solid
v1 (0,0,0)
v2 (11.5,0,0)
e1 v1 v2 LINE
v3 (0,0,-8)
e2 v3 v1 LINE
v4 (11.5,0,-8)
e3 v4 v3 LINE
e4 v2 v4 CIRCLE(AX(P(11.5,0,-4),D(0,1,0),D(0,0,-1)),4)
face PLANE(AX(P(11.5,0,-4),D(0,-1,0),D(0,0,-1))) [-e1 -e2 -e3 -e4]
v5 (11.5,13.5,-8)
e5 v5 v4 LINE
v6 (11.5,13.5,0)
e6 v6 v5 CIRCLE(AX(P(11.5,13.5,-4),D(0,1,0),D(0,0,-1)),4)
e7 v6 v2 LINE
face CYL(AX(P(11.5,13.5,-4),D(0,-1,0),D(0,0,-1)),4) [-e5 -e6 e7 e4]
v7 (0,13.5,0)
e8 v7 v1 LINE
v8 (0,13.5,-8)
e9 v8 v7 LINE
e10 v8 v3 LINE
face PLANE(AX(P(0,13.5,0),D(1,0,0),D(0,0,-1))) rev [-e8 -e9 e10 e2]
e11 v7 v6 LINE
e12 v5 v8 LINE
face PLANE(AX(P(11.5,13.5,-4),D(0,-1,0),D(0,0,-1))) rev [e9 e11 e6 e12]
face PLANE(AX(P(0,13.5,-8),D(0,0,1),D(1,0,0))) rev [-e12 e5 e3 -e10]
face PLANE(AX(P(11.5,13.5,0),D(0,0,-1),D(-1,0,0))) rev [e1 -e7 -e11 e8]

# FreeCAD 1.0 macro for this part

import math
import FreeCAD as App
import Part
import Sketcher
from FreeCAD import Vector

doc = App.newDocument("Part")
params = doc.addObject("Spreadsheet::Sheet", "Params")
for row, (alias, value) in enumerate([
    ("sketch1_radius", "4 mm"),
    ("sketch1_width", "11.5 mm"),
    ("pad1_length", "13.5 mm"),
], start=1):
    params.set(f"A{row}", alias)
    params.set(f"B{row}", "=" + value)
    params.setAlias(f"B{row}", alias)

body = doc.addObject("PartDesign::Body", "Body")

# Sketch on XZ plane
sketch1 = body.newObject("Sketcher::SketchObject", "Sketch")
sketch1.AttachmentSupport = (doc.getObject("XZ_Plane"), [""])
sketch1.MapMode = "FlatFace"
sketch1.addGeometry([
    Part.LineSegment(Vector(0, -8, 0), Vector(0, 0, 0)),
    Part.LineSegment(Vector(0, 0, 0), Vector(11.5, 0, 0)),
    Part.ArcOfCircle(Part.Circle(Vector(11.5, -4, 0), Vector(0, 0, 1), 4), math.radians(-90), math.radians(90)),
    Part.LineSegment(Vector(11.5, -8, 0), Vector(0, -8, 0)),
], False)
sketch1.addConstraint([
    Sketcher.Constraint("Coincident", 0, 2, 1, 1),
    Sketcher.Constraint("Tangent", 1, 2, 2, 2),
    Sketcher.Constraint("Tangent", 2, 1, 3, 1),
    Sketcher.Constraint("Coincident", 3, 2, 0, 1),
    Sketcher.Constraint("Vertical", 0),
    Sketcher.Constraint("Horizontal", 1),
    Sketcher.Constraint("Horizontal", 3),
    Sketcher.Constraint("Coincident", 0, 2, -1, 1),
    Sketcher.Constraint("Radius", 2, 4.0),
    Sketcher.Constraint("DistanceX", 1, 1, 1, 2, 11.5),
])
sketch1.setExpression("Constraints[8]", "Params.sketch1_radius")
sketch1.setExpression("Constraints[9]", "Params.sketch1_width")
pad1 = body.newObject("PartDesign::Pad", "Pad")
pad1.Profile = sketch1
pad1.setExpression("Length", "Params.pad1_length")
pad1.Reversed = True

doc.recompute()
